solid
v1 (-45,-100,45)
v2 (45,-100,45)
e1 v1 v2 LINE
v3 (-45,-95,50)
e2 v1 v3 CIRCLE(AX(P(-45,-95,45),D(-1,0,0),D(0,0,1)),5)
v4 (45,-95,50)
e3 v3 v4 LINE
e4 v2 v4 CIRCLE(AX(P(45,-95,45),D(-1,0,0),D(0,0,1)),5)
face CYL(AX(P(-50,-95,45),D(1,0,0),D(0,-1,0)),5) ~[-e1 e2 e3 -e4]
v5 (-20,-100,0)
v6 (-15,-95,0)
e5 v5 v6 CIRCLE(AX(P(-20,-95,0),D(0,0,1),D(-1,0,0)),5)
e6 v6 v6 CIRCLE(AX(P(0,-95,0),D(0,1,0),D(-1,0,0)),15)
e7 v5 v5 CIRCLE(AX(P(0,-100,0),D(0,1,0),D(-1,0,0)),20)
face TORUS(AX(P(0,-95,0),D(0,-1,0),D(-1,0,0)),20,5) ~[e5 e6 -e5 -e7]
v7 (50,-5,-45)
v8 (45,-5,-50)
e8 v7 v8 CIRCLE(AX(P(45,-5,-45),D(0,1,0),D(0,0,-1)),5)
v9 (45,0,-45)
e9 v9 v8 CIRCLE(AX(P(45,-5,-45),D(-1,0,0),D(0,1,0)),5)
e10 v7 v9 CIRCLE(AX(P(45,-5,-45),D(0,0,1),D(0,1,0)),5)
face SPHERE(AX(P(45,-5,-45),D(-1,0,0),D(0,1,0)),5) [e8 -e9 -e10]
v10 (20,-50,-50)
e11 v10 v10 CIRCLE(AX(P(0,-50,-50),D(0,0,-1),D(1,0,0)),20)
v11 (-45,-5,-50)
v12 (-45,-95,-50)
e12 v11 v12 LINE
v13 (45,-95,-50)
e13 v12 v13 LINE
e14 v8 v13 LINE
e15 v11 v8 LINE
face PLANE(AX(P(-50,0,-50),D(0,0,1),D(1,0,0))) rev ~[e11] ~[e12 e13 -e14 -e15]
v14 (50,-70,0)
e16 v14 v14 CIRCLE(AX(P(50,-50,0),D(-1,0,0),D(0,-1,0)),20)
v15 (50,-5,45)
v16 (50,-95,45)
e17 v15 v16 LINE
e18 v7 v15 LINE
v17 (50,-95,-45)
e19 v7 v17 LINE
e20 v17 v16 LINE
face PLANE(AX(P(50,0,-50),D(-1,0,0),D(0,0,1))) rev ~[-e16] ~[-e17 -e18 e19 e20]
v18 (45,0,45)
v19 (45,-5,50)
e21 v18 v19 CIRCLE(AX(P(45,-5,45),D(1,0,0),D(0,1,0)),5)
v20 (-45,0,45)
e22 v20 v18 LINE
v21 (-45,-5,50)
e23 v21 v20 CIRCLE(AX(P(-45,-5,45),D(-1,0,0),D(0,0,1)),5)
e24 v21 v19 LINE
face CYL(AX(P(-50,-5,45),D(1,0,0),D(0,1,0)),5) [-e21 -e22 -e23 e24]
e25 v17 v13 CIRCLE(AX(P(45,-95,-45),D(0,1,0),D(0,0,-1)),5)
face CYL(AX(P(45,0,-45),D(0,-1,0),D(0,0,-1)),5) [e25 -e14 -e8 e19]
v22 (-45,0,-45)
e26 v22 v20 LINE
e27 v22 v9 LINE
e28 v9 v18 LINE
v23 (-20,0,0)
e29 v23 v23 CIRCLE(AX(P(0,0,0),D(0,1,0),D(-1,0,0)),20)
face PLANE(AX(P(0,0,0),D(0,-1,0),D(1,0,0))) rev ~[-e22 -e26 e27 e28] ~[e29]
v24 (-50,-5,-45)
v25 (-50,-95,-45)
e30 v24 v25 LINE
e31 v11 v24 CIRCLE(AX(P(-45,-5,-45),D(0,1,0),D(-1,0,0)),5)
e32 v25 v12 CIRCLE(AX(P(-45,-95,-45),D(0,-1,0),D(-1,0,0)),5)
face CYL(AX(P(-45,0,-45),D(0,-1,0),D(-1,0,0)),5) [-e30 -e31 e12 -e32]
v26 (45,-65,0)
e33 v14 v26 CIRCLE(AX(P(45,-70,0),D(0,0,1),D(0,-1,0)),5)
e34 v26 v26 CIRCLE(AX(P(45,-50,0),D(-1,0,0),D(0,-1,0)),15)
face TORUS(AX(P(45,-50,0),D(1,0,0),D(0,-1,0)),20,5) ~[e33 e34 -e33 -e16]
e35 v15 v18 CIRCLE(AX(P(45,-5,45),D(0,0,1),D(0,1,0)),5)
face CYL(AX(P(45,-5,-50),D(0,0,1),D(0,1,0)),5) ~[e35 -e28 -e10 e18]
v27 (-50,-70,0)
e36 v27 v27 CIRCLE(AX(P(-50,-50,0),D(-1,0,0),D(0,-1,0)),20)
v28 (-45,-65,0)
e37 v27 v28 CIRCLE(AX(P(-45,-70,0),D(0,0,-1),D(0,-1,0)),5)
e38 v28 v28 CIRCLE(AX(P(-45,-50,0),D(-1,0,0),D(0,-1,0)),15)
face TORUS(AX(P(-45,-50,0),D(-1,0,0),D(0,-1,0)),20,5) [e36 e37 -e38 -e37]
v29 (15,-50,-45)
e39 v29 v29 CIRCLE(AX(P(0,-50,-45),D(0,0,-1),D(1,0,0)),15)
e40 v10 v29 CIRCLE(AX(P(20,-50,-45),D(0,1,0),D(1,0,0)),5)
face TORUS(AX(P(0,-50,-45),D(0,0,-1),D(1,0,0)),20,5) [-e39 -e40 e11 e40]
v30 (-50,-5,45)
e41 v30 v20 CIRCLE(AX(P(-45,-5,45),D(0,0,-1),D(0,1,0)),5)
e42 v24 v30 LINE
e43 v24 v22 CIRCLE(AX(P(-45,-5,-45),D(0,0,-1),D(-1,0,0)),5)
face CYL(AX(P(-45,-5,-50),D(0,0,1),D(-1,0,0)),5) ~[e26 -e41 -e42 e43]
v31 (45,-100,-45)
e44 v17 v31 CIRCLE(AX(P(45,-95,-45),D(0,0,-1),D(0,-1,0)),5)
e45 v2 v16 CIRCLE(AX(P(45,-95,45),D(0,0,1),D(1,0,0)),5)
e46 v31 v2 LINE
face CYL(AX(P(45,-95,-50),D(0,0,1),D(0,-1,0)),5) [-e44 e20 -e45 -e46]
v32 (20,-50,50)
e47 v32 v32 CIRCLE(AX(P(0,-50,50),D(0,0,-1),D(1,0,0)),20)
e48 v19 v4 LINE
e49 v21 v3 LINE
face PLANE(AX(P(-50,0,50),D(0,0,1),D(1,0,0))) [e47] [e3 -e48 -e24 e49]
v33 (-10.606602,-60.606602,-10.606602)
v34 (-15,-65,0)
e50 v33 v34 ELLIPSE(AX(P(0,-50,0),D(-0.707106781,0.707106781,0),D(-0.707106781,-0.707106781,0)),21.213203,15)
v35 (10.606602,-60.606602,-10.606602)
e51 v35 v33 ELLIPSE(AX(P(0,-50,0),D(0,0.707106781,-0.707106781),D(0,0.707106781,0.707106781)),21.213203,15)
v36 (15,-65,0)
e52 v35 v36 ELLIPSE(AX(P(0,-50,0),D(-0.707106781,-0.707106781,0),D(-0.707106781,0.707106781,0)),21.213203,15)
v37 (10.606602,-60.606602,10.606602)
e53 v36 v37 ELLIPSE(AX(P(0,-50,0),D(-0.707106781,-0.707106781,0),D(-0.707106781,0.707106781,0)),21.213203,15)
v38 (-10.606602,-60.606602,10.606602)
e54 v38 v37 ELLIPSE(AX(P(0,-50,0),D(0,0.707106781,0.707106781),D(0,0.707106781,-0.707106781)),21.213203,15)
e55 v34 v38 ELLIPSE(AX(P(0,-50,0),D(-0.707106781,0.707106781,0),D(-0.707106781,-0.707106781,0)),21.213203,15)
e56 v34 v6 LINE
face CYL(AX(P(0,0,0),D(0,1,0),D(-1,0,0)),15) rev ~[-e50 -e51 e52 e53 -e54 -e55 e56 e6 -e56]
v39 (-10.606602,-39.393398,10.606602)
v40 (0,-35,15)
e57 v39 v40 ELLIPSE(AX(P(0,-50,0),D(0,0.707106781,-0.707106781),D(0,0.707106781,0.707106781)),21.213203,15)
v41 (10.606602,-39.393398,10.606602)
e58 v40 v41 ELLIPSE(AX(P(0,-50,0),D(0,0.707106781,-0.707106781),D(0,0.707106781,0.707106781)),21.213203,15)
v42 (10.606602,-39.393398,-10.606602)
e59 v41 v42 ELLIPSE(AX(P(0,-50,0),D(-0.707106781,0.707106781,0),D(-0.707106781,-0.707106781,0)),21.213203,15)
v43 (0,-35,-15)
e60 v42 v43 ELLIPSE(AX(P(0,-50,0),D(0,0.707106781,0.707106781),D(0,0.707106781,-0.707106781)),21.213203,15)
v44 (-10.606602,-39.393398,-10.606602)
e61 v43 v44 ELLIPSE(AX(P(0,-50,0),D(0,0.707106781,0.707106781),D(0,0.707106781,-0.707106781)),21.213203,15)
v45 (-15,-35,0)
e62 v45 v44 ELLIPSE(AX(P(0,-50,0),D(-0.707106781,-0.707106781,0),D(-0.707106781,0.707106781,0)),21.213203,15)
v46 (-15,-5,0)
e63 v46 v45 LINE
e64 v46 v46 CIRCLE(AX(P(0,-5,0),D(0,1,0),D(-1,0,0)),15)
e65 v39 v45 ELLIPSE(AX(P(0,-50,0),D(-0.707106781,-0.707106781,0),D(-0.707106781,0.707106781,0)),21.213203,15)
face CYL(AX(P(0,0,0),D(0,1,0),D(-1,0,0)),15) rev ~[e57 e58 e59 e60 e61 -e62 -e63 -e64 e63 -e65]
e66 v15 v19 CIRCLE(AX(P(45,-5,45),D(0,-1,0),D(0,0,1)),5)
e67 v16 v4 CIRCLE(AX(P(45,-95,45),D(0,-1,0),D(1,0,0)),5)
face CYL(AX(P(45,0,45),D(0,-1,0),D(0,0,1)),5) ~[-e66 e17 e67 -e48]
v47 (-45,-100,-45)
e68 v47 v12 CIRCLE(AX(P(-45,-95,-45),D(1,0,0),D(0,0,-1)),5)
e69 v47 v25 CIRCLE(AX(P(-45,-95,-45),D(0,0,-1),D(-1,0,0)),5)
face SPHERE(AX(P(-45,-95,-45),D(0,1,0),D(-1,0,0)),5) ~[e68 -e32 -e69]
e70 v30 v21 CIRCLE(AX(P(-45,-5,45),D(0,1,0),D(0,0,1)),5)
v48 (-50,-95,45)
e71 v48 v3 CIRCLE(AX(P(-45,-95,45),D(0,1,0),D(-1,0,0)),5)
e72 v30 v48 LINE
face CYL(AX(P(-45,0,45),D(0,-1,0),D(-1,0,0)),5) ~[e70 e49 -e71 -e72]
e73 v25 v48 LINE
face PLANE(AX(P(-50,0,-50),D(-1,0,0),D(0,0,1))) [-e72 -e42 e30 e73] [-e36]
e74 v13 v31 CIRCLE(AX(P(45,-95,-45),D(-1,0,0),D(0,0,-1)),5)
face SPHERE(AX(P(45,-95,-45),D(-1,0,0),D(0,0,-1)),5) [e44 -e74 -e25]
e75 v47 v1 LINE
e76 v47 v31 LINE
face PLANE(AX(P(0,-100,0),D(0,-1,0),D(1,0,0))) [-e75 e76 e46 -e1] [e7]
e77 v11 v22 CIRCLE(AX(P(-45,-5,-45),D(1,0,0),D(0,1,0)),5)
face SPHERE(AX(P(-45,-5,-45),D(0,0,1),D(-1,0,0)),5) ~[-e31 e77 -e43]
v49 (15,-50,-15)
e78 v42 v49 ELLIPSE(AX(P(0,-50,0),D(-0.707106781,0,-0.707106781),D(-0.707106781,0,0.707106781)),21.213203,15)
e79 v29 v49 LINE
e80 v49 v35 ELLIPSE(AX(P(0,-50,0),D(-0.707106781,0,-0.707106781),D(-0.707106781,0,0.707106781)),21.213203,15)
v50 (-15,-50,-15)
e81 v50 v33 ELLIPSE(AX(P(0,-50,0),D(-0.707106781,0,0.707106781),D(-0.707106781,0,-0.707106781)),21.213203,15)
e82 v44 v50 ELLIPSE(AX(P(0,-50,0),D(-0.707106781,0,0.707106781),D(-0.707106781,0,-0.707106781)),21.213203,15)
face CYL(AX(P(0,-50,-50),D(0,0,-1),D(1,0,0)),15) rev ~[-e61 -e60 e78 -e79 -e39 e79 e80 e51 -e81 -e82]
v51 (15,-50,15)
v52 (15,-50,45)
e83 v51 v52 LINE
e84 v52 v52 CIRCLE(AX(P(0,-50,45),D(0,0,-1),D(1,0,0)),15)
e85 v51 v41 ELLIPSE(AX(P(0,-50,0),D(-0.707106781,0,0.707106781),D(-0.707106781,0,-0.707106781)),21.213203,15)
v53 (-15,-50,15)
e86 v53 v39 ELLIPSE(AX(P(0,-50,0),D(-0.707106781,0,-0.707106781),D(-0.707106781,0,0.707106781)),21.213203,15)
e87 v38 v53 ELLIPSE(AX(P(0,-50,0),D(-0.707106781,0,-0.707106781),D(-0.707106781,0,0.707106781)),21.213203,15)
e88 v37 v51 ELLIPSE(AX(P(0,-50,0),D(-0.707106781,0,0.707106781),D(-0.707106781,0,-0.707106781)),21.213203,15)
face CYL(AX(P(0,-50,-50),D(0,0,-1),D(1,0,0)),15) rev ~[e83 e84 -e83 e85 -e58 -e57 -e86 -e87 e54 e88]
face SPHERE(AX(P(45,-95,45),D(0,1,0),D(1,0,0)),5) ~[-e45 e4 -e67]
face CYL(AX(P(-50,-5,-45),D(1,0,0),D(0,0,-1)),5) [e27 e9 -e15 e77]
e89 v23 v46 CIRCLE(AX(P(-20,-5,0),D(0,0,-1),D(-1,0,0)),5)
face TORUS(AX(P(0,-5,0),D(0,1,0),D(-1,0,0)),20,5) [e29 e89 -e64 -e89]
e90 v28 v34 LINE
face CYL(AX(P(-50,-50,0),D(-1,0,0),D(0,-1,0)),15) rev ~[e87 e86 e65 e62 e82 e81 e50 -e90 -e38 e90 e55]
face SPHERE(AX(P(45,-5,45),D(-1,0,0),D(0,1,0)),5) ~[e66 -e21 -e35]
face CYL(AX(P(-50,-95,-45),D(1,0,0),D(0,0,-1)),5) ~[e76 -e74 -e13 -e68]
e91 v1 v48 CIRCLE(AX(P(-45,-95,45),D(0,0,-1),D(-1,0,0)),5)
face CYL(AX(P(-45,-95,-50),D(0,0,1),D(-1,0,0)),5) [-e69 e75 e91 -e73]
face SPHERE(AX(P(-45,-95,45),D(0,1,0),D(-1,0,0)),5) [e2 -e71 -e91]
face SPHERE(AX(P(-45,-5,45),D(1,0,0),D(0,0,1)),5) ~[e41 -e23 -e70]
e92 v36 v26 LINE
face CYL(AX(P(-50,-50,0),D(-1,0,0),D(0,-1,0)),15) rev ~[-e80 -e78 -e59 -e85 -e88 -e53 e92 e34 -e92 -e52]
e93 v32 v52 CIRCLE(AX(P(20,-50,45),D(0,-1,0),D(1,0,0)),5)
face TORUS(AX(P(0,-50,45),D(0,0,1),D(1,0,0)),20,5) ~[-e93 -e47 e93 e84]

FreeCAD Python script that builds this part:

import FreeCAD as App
import Part
import Sketcher
Q = App.Units.Quantity


def edges_at(feature, points):
    """Names of the edges that pass closest to the given points."""
    edges = feature.Shape.Edges
    near = lambda p: min(range(len(edges)), key=lambda i: edges[i].distToShape(Part.Vertex(*p))[0])
    return sorted({f"Edge{near(p) + 1}" for p in points})

doc = App.newDocument("Part")
body = doc.addObject("PartDesign::Body", "Body")

# Sketch on XZ plane
sketch1 = body.newObject("Sketcher::SketchObject", "Sketch")
sketch1.AttachmentSupport = (doc.getObject("XZ_Plane"), [""])
sketch1.MapMode = "FlatFace"
sketch1.addGeometry([
    Part.LineSegment(App.Vector(-50, 50, 0), App.Vector(-50, -50, 0)),
    Part.LineSegment(App.Vector(-50, -50, 0), App.Vector(50, -50, 0)),
    Part.LineSegment(App.Vector(50, -50, 0), App.Vector(50, 50, 0)),
    Part.LineSegment(App.Vector(50, 50, 0), App.Vector(-50, 50, 0)),
], False)
sketch1.addConstraint([
    Sketcher.Constraint("Coincident", 0, 2, 1, 1),
    Sketcher.Constraint("Coincident", 1, 2, 2, 1),
    Sketcher.Constraint("Coincident", 2, 2, 3, 1),
    Sketcher.Constraint("Coincident", 3, 2, 0, 1),
    Sketcher.Constraint("Vertical", 0),
    Sketcher.Constraint("Horizontal", 1),
    Sketcher.Constraint("Vertical", 2),
    Sketcher.Constraint("Horizontal", 3),
    Sketcher.Constraint("Symmetric", 0, 2, 2, 2, -1, 1),
    Sketcher.Constraint("Equal", 3, 0),
    Sketcher.Constraint("DistanceX", 1, 1, 1, 2, Q("100 mm")),
])
pad1 = body.newObject("PartDesign::Pad", "Pad")
pad1.Profile = sketch1
pad1.Length = 100

# Sketch on YZ plane
sketch2 = body.newObject("Sketcher::SketchObject", "Sketch001")
sketch2.AttachmentSupport = (doc.getObject("YZ_Plane"), [""])
sketch2.MapMode = "FlatFace"
sketch2.AttachmentOffset = App.Placement(App.Vector(0, 0, -50), App.Rotation())
sketch2.addGeometry(Part.Circle(App.Vector(-50, 0, 0), App.Vector(0, 0, 1), 15), False)
sketch2.addConstraint([
    Sketcher.Constraint("PointOnObject", 0, 3, -1),
    Sketcher.Constraint("Diameter", 0, Q("30 mm")),
    Sketcher.Constraint("DistanceX", 0, 3, -1, 1, Q("50 mm")),
])
pocket1 = body.newObject("PartDesign::Pocket", "Pocket")
pocket1.Profile = sketch2
pocket1.Type = "ThroughAll"
pocket1.Reversed = True

# Sketch on XZ plane
sketch3 = body.newObject("Sketcher::SketchObject", "Sketch002")
sketch3.AttachmentSupport = (doc.getObject("XZ_Plane"), [""])
sketch3.MapMode = "FlatFace"
sketch3.addGeometry(Part.Circle(App.Vector(0, 0, 0), App.Vector(0, 0, 1), 15), False)
sketch3.addConstraint([
    Sketcher.Constraint("Coincident", 0, 3, -1, 1),
    Sketcher.Constraint("Diameter", 0, Q("30 mm")),
])
pocket2 = body.newObject("PartDesign::Pocket", "Pocket001")
pocket2.Profile = sketch3
pocket2.Type = "ThroughAll"
pocket2.Reversed = True

# Sketch on XY plane
sketch4 = body.newObject("Sketcher::SketchObject", "Sketch003")
sketch4.AttachmentSupport = (doc.getObject("XY_Plane"), [""])
sketch4.MapMode = "FlatFace"
sketch4.AttachmentOffset = App.Placement(App.Vector(0, 0, -50), App.Rotation())
sketch4.addGeometry(Part.Circle(App.Vector(0, -50, 0), App.Vector(0, 0, 1), 15), False)
sketch4.addConstraint([
    Sketcher.Constraint("PointOnObject", 0, 3, -2),
    Sketcher.Constraint("Diameter", 0, Q("30 mm")),
    Sketcher.Constraint("DistanceY", 0, 3, -1, 1, Q("50 mm")),
])
pocket3 = body.newObject("PartDesign::Pocket", "Pocket002")
pocket3.Profile = sketch4
pocket3.Type = "ThroughAll"
pocket3.Reversed = True
doc.recompute()

fillet = body.newObject("PartDesign::Fillet", "Fillet")
fillet.Base = (pocket3, edges_at(pocket3, [
    (0, 0, 50),
    (-50, -50, 50),
    (-50, 0, 0),
    (-50, -50, -50),
    (0, 0, -50),
    (50, 0, 0),
    (-50, -100, 0),
    (-50, -35, 0),
    (0, -100, -50),
    (50, -50, -50),
    (50, -50, 50),
    (50, -100, 0),
    (0, -100, 50),
]))
fillet.Radius = 5
doc.recompute()

fillet2 = body.newObject("PartDesign::Fillet", "Fillet001")
fillet2.Base = (fillet, edges_at(fillet, [
    (-15, -50, 50),
    (15, -100, 0),
    (50, -35, 0),
    (15, 0, 0),
    (-15, -50, -50),
]))
fillet2.Radius = 5

doc.recompute()
